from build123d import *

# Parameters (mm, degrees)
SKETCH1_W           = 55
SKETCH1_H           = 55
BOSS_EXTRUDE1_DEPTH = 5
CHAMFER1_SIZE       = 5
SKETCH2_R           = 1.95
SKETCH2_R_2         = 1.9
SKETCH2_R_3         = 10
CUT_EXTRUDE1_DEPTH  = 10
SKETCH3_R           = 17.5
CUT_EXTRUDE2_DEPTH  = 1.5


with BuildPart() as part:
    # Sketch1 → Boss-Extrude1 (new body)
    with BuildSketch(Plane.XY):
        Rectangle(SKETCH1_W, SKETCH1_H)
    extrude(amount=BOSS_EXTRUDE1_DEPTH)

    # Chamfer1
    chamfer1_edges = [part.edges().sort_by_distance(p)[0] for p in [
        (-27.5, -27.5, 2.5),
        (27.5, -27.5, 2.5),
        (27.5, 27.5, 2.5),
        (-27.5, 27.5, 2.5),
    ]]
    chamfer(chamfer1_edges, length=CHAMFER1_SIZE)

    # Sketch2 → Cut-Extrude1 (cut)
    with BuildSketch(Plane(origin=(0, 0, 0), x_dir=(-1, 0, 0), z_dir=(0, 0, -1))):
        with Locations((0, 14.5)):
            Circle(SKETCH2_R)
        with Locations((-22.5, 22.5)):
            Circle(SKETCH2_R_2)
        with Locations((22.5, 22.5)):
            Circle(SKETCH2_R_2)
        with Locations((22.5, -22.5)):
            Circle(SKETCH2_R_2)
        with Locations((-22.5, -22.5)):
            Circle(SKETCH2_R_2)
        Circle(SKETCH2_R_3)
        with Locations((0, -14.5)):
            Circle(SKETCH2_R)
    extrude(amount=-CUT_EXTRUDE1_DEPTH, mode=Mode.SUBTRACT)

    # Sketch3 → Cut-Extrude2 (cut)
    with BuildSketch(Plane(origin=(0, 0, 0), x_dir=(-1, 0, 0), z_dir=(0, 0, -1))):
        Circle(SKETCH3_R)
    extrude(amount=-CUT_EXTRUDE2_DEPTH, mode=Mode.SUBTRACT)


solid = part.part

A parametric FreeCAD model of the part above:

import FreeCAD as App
import Part
import Sketcher

V = App.Vector
Q = App.Units.Quantity


def edges_at(feature, points):
    """Names of the edges that pass closest to the given points."""
    edges = feature.Shape.Edges
    near = lambda p: min(range(len(edges)), key=lambda i: edges[i].distToShape(Part.Vertex(*p))[0])
    return sorted({f"Edge{near(p) + 1}" for p in points})


def add_polygon(sketch, points):
    """Adds a closed chain of lines whose ends are joined by coincident constraints."""
    first, n = sketch.GeometryCount, len(points)
    for a, b in zip(points, points[1:] + points[:1]):
        sketch.addGeometry(Part.LineSegment(App.Vector(*a, 0), App.Vector(*b, 0)), False)
    for i in range(n):
        sketch.addConstraint(Sketcher.Constraint("Coincident", first + i, 2, first + (i + 1) % n, 1))

doc = App.newDocument("Part")
body = doc.addObject("PartDesign::Body", "Body")

# Sketch on XY plane
sketch1 = doc.addObject("Sketcher::SketchObject", "Sketch")
body.addObject(sketch1)
sketch1.AttachmentSupport = (doc.XY_Plane, [""])
sketch1.MapMode = "FlatFace"
add_polygon(sketch1, [(-28, 28), (-28, -28), (28, -28), (28, 28)])  # lines 0-3
sketch1.addConstraint([
    Sketcher.Constraint("Vertical", 0),
    Sketcher.Constraint("Horizontal", 1),
    Sketcher.Constraint("Vertical", 2),
    Sketcher.Constraint("Horizontal", 3),
    Sketcher.Constraint("Symmetric", 0, 2, 2, 2, -1, 1),
    Sketcher.Constraint("Equal", 3, 0),
    Sketcher.Constraint("DistanceX", 1, 1, 1, 2, Q("55 mm")),
])
pad1 = doc.addObject("PartDesign::Pad", "Pad")
body.addObject(pad1)
pad1.Profile = sketch1
pad1.Length = 5
doc.recompute()

chamfer = doc.addObject("PartDesign::Chamfer", "Chamfer")
body.addObject(chamfer)
chamfer.Base = (pad1, edges_at(pad1, [
    (-27.5, -27.5, 2.5),
    (27.5, -27.5, 2.5),
    (27.5, 27.5, 2.5),
    (-27.5, 27.5, 2.5),
]))
chamfer.Size = 5

# Sketch on XY plane
sketch2 = doc.addObject("Sketcher::SketchObject", "Sketch001")
body.addObject(sketch2)
sketch2.AttachmentSupport = (doc.XY_Plane, [""])
sketch2.MapMode = "FlatFace"
sketch2.addGeometry([
    Part.Circle(V(0, 14.5, 0), V(0, 0, 1), 1.9),  # 0
    Part.Circle(V(22.5, 22.5, 0), V(0, 0, 1), 1.9),  # 1
    Part.Circle(V(-22.5, 22.5, 0), V(0, 0, 1), 1.9),  # 2
    Part.Circle(V(-22.5, -22.5, 0), V(0, 0, 1), 1.9),  # 3
    Part.Circle(V(22.5, -22.5, 0), V(0, 0, 1), 1.9),  # 4
    Part.Circle(V(0, 0, 0), V(0, 0, 1), 10),  # 5
    Part.Circle(V(0, -14.5, 0), V(0, 0, 1), 1.9),  # 6
], False)
sketch2.addConstraint([
    Sketcher.Constraint("Coincident", 5, 3, -1, 1),
    Sketcher.Constraint("Equal", 1, 2),
    Sketcher.Constraint("Equal", 2, 3),
    Sketcher.Constraint("Equal", 3, 4),
    Sketcher.Constraint("Equal", 0, 6),
    Sketcher.Constraint("Symmetric", 1, 3, 3, 3, -1, 1),
    Sketcher.Constraint("Symmetric", 2, 3, 4, 3, -1, 1),
    Sketcher.Constraint("Symmetric", 0, 3, 6, 3, -1, 1),
    Sketcher.Constraint("Symmetric", 1, 3, 2, 3, -2),
    Sketcher.Constraint("PointOnObject", 0, 3, -2),
    Sketcher.Constraint("Diameter", 5, Q("20 mm")),
    Sketcher.Constraint("Diameter", 0, Q("3.9 mm")),
    Sketcher.Constraint("Diameter", 1, Q("3.8 mm")),
    Sketcher.Constraint("DistanceY", 0, 3, 1, 3, Q("8 mm")),
    Sketcher.Constraint("DistanceX", 2, 3, 1, 3, Q("45 mm")),
    Sketcher.Constraint("DistanceY", 3, 3, 0, 3, Q("37 mm")),
])
pocket1 = doc.addObject("PartDesign::Pocket", "Pocket")
body.addObject(pocket1)
pocket1.Profile = sketch2
pocket1.Length = 10
pocket1.Reversed = True

# Sketch on XY plane
sketch3 = doc.addObject("Sketcher::SketchObject", "Sketch002")
body.addObject(sketch3)
sketch3.AttachmentSupport = (doc.XY_Plane, [""])
sketch3.MapMode = "FlatFace"
sketch3.addGeometry(Part.Circle(V(0, 0, 0), V(0, 0, 1), 18), False)
sketch3.addConstraint([
    Sketcher.Constraint("Coincident", 0, 3, -1, 1),
    Sketcher.Constraint("Diameter", 0, Q("35 mm")),
])
pocket2 = doc.addObject("PartDesign::Pocket", "Pocket001")
body.addObject(pocket2)
pocket2.Profile = sketch3
pocket2.Length = 1.5
pocket2.Reversed = True

doc.recompute()
